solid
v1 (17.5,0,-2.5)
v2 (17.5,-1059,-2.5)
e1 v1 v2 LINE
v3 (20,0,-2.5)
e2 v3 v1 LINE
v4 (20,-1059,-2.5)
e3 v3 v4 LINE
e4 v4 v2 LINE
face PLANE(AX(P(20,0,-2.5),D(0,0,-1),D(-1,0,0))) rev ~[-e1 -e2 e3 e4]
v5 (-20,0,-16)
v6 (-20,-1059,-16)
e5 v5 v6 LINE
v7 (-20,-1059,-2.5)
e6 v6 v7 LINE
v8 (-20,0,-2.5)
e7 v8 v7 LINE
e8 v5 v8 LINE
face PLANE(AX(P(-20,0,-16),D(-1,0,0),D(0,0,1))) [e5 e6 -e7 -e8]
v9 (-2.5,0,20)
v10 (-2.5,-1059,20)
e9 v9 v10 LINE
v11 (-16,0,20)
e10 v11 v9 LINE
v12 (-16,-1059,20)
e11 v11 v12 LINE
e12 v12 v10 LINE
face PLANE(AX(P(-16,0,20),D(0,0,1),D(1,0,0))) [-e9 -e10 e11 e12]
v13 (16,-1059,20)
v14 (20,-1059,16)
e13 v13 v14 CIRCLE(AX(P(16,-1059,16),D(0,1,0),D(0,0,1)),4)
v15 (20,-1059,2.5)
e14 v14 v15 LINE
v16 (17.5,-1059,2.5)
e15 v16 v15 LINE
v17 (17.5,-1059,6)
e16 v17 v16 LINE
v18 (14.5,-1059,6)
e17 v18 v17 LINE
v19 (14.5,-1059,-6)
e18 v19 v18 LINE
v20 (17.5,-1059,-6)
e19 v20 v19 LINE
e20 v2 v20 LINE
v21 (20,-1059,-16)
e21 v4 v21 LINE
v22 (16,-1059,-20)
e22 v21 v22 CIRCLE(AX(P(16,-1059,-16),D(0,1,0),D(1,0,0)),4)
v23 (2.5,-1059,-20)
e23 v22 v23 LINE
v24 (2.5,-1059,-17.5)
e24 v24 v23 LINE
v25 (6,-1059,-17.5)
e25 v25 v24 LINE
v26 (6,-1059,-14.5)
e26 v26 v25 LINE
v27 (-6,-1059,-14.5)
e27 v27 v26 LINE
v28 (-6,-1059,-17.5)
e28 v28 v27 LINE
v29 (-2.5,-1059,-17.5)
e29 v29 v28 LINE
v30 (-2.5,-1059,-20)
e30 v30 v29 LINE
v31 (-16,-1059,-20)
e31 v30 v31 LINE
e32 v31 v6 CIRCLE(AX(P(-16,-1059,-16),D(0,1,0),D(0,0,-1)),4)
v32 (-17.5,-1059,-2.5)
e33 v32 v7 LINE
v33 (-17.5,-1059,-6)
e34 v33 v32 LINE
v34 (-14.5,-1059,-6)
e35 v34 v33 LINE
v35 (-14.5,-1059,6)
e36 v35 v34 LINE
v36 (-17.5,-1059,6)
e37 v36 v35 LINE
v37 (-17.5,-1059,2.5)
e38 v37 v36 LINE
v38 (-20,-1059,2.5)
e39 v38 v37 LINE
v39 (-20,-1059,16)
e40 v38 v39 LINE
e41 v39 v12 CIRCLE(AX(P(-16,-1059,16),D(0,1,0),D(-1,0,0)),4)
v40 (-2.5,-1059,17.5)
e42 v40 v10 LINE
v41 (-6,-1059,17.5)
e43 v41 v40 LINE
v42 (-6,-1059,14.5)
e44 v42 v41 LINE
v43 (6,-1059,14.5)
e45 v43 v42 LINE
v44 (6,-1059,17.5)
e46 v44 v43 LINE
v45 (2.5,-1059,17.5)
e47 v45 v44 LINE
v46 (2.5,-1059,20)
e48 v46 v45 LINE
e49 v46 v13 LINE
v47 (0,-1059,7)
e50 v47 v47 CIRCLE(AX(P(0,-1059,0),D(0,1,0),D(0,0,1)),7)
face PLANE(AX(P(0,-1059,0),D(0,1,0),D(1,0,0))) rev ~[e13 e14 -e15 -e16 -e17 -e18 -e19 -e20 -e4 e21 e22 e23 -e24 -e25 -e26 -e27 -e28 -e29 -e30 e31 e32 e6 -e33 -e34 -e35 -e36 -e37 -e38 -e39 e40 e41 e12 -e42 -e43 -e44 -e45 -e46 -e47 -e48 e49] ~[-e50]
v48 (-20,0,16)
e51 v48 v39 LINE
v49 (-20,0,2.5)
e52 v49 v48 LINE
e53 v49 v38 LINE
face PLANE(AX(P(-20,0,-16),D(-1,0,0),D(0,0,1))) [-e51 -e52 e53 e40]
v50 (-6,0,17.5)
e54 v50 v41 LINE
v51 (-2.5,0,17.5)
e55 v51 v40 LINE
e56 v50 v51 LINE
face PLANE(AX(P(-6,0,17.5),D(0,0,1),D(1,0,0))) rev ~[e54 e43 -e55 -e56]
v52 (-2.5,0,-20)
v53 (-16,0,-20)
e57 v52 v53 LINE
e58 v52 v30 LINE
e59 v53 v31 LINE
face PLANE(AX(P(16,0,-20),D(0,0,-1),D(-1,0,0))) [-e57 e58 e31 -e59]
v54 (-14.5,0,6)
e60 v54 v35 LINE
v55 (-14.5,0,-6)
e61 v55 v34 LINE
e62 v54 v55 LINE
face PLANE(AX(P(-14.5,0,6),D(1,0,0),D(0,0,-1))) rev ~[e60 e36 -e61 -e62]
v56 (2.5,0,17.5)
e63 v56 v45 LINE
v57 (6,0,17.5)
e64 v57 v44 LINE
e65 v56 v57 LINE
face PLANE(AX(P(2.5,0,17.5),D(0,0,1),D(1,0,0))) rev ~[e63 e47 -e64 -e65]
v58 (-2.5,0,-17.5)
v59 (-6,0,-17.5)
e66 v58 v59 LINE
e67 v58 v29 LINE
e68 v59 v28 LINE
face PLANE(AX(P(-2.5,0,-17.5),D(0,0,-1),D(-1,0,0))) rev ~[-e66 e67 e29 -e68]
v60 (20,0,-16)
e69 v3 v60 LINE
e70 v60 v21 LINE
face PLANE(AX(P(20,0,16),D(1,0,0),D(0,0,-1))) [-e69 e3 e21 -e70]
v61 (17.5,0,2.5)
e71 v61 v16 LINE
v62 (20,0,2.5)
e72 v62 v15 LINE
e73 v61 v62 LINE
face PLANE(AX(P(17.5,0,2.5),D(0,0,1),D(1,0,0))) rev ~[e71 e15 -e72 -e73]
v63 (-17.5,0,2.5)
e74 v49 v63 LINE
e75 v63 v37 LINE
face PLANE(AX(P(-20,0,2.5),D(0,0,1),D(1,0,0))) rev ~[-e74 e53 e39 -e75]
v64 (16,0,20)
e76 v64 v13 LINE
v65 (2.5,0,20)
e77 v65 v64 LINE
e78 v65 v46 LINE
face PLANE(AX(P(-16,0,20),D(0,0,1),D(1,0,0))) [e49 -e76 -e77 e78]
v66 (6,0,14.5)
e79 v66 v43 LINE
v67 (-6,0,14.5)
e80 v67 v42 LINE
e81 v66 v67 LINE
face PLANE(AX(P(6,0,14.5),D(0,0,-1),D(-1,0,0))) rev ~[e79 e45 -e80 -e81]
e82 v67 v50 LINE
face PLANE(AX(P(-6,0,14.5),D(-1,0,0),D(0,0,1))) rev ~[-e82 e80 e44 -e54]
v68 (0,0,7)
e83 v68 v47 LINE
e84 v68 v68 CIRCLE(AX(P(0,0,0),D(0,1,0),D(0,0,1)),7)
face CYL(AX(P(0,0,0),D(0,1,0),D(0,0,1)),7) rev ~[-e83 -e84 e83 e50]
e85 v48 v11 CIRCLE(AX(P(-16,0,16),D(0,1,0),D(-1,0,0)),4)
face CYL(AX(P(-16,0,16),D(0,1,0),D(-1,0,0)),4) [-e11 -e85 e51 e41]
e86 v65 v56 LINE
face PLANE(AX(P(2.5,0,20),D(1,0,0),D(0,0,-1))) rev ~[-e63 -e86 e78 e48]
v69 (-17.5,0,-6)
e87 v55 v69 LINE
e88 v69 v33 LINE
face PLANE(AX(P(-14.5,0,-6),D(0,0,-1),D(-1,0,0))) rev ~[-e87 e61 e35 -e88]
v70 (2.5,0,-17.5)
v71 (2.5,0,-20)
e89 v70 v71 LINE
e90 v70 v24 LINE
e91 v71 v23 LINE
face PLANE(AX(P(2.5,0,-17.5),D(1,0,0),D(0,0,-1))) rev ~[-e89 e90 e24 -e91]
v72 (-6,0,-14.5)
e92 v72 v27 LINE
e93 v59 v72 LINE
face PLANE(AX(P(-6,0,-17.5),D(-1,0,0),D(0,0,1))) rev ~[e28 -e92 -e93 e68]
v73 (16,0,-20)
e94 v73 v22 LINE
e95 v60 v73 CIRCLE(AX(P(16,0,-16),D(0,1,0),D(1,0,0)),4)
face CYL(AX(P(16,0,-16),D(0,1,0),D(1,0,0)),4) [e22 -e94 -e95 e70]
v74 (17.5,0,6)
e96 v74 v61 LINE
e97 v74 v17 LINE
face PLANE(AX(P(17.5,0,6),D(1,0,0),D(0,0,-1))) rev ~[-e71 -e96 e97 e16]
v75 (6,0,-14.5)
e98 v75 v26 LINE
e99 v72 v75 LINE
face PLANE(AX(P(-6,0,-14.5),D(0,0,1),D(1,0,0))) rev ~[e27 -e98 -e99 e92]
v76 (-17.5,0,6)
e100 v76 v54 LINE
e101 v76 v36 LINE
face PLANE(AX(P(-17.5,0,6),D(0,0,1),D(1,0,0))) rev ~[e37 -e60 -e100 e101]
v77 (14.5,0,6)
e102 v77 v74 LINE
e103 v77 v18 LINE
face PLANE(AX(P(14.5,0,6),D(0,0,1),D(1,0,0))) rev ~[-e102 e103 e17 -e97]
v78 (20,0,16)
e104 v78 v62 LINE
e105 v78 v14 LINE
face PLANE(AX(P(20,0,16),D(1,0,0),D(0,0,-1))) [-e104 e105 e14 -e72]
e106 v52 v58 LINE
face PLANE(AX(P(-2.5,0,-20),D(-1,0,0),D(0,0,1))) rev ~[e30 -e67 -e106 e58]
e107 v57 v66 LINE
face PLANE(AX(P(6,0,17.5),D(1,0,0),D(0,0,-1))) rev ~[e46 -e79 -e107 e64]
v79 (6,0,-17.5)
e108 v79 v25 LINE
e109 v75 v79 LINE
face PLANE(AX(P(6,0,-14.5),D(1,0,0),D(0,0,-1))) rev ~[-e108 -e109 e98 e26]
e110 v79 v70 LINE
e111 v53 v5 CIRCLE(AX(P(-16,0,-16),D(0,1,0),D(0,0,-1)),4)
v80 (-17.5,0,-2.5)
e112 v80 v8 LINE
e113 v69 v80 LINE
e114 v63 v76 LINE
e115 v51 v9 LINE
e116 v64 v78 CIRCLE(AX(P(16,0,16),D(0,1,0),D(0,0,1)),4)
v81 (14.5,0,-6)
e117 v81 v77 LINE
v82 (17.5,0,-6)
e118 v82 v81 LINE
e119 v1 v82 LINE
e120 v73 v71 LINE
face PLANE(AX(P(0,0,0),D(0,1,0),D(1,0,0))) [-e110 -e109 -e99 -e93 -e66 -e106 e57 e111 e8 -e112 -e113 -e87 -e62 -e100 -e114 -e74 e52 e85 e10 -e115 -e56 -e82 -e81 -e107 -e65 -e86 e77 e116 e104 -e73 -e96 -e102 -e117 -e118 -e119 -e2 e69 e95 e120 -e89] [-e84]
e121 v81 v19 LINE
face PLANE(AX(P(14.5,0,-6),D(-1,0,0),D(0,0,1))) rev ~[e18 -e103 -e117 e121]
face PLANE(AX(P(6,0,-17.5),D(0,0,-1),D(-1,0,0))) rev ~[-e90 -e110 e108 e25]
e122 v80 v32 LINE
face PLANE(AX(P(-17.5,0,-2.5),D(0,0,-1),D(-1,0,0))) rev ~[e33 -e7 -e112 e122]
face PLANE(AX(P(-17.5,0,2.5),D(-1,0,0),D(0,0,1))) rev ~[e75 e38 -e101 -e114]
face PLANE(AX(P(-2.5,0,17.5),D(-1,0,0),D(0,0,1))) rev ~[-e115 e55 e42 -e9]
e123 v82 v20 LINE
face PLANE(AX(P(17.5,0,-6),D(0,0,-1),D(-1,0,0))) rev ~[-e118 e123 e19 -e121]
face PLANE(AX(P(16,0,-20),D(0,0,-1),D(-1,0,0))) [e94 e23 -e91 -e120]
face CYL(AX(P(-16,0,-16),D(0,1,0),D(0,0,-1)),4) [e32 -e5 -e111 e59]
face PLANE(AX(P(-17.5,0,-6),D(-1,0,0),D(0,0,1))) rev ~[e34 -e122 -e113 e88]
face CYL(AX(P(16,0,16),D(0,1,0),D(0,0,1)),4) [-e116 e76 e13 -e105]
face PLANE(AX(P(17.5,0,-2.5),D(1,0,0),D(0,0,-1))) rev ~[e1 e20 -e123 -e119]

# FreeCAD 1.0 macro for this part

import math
import FreeCAD as App
import Part
import Sketcher

V = App.Vector
Q = App.Units.Quantity


def add_polygon(sketch, points):
    """Adds a closed chain of lines whose ends are joined by coincident constraints."""
    first, n = sketch.GeometryCount, len(points)
    for a, b in zip(points, points[1:] + points[:1]):
        sketch.addGeometry(Part.LineSegment(App.Vector(*a, 0), App.Vector(*b, 0)), False)
    for i in range(n):
        sketch.addConstraint(Sketcher.Constraint("Coincident", first + i, 2, first + (i + 1) % n, 1))

doc = App.newDocument("Part")
params = doc.addObject("Spreadsheet::Sheet", "Params")
for row, (alias, value) in enumerate([
    ("sketch1_diameter", "14 mm"),
    ("sketch1_radius", "4 mm"),
    ("sketch1_width", "32 mm"),
    ("pad1_length", "1059 mm"),
    ("sketch2_width", "12 mm"),
    ("sketch2_width2", "5 mm"),
    ("sketch2_height", "3 mm"),
    ("sketch2_height2", "2.5 mm"),
], start=1):
    params.set(f"A{row}", alias)
    params.set(f"B{row}", "=" + value)
    params.setAlias(f"B{row}", alias)

body = doc.addObject("PartDesign::Body", "Body")

# Sketch on XZ plane
sketch1 = doc.addObject("Sketcher::SketchObject", "Sketch")
body.addObject(sketch1)
sketch1.AttachmentSupport = (doc.XZ_Plane, [""])
sketch1.MapMode = "FlatFace"
sketch1.addGeometry(Part.LineSegment(V(-16, 20, 0), V(16, 20, 0)), False)
sketch1.addGeometry(Part.ArcOfCircle(Part.Circle(V(16, 16, 0), V(0, 0, 1), 4), math.radians(0), math.radians(90)), False)
sketch1.addGeometry(Part.LineSegment(V(20, 16, 0), V(20, -16, 0)), False)
sketch1.addGeometry(Part.ArcOfCircle(Part.Circle(V(16, -16, 0), V(0, 0, 1), 4), math.radians(-90), math.radians(0)), False)
sketch1.addGeometry(Part.LineSegment(V(16, -20, 0), V(-16, -20, 0)), False)
sketch1.addGeometry(Part.ArcOfCircle(Part.Circle(V(-16, -16, 0), V(0, 0, 1), 4), math.radians(180), math.radians(270)), False)
sketch1.addGeometry(Part.LineSegment(V(-20, -16, 0), V(-20, 16, 0)), False)
sketch1.addGeometry(Part.ArcOfCircle(Part.Circle(V(-16, 16, 0), V(0, 0, 1), 4), math.radians(90), math.radians(180)), False)
sketch1.addGeometry(Part.Circle(V(0, 0, 0), V(0, 0, 1), 7), False)
sketch1.addConstraint(Sketcher.Constraint("Tangent", 0, 2, 1, 2))
sketch1.addConstraint(Sketcher.Constraint("Tangent", 1, 1, 2, 1))
sketch1.addConstraint(Sketcher.Constraint("Tangent", 2, 2, 3, 2))
sketch1.addConstraint(Sketcher.Constraint("Tangent", 3, 1, 4, 1))
sketch1.addConstraint(Sketcher.Constraint("Tangent", 4, 2, 5, 2))
sketch1.addConstraint(Sketcher.Constraint("Tangent", 5, 1, 6, 1))
sketch1.addConstraint(Sketcher.Constraint("Tangent", 6, 2, 7, 2))
sketch1.addConstraint(Sketcher.Constraint("Tangent", 7, 1, 0, 1))
sketch1.addConstraint(Sketcher.Constraint("Horizontal", 0))
sketch1.addConstraint(Sketcher.Constraint("Vertical", 2))
sketch1.addConstraint(Sketcher.Constraint("Horizontal", 4))
sketch1.addConstraint(Sketcher.Constraint("Vertical", 6))
sketch1.addConstraint(Sketcher.Constraint("Coincident", 8, 3, -1, 1))
sketch1.addConstraint(Sketcher.Constraint("Equal", 1, 3))
sketch1.addConstraint(Sketcher.Constraint("Equal", 3, 5))
sketch1.addConstraint(Sketcher.Constraint("Equal", 5, 7))
sketch1.addConstraint(Sketcher.Constraint("Symmetric", 1, 3, 5, 3, -1, 1))
sketch1.addConstraint(Sketcher.Constraint("Equal", 4, 2))
sketch1.addConstraint(Sketcher.Constraint("Diameter", 8, Q("14 mm")))
sketch1.addConstraint(Sketcher.Constraint("Radius", 1, Q("4 mm")))
sketch1.addConstraint(Sketcher.Constraint("DistanceX", 0, 1, 0, 2, Q("32 mm")))
sketch1.setExpression("Constraints[18]", "Params.sketch1_diameter")
sketch1.setExpression("Constraints[19]", "Params.sketch1_radius")
sketch1.setExpression("Constraints[20]", "Params.sketch1_width")
pad1 = doc.addObject("PartDesign::Pad", "Pad")
body.addObject(pad1)
pad1.Profile = sketch1
pad1.setExpression("Length", "Params.pad1_length")

# Sketch on XZ plane
sketch2 = doc.addObject("Sketcher::SketchObject", "Sketch001")
body.addObject(sketch2)
sketch2.AttachmentSupport = (doc.XZ_Plane, [""])
sketch2.MapMode = "FlatFace"
add_polygon(sketch2, [(-2.5, -20), (-2.5, -17.5), (-6, -17.5), (-6, -14.5), (6, -14.5), (6, -17.5), (2.5, -17.5), (2.5, -20)])  # lines 0-7
sketch2.addConstraint(Sketcher.Constraint("Vertical", 0))
sketch2.addConstraint(Sketcher.Constraint("Horizontal", 1))
sketch2.addConstraint(Sketcher.Constraint("Vertical", 2))
sketch2.addConstraint(Sketcher.Constraint("Horizontal", 3))
sketch2.addConstraint(Sketcher.Constraint("Vertical", 4))
sketch2.addConstraint(Sketcher.Constraint("Horizontal", 5))
sketch2.addConstraint(Sketcher.Constraint("Vertical", 6))
sketch2.addConstraint(Sketcher.Constraint("Horizontal", 7))
sketch2.addConstraint(Sketcher.Constraint("Symmetric", 1, 2, 4, 2, -2))
sketch2.addConstraint(Sketcher.Constraint("Equal", 1, 5))
sketch2.addConstraint(Sketcher.Constraint("DistanceX", 3, 1, 3, 2, Q("12 mm")))
sketch2.addConstraint(Sketcher.Constraint("DistanceX", 7, 2, 7, 1, Q("5 mm")))
sketch2.addConstraint(Sketcher.Constraint("DistanceY", 2, 1, 2, 2, Q("3 mm")))
sketch2.addConstraint(Sketcher.Constraint("DistanceY", 0, 1, 0, 2, Q("2.5 mm")))
sketch2.addConstraint(Sketcher.Constraint("DistanceY", 6, 2, -1, 1, Q("20 mm")))
sketch2.setExpression("Constraints[18]", "Params.sketch2_width")
sketch2.setExpression("Constraints[19]", "Params.sketch2_width2")
sketch2.setExpression("Constraints[20]", "Params.sketch2_height")
sketch2.setExpression("Constraints[21]", "Params.sketch2_height2")
pocket1 = doc.addObject("PartDesign::Pocket", "Pocket")
body.addObject(pocket1)
pocket1.Profile = sketch2
pocket1.Type = "ThroughAll"
pocket1.Reversed = True
doc.recompute()

polarpattern = doc.addObject("PartDesign::PolarPattern", "PolarPattern")
body.addObject(polarpattern)
polarpattern.Originals = [pocket1]
polarpattern.Axis = (doc.Y_Axis, [""])
polarpattern.Angle = 360
polarpattern.Occurrences = 4
body.Tip = polarpattern

doc.recompute()
